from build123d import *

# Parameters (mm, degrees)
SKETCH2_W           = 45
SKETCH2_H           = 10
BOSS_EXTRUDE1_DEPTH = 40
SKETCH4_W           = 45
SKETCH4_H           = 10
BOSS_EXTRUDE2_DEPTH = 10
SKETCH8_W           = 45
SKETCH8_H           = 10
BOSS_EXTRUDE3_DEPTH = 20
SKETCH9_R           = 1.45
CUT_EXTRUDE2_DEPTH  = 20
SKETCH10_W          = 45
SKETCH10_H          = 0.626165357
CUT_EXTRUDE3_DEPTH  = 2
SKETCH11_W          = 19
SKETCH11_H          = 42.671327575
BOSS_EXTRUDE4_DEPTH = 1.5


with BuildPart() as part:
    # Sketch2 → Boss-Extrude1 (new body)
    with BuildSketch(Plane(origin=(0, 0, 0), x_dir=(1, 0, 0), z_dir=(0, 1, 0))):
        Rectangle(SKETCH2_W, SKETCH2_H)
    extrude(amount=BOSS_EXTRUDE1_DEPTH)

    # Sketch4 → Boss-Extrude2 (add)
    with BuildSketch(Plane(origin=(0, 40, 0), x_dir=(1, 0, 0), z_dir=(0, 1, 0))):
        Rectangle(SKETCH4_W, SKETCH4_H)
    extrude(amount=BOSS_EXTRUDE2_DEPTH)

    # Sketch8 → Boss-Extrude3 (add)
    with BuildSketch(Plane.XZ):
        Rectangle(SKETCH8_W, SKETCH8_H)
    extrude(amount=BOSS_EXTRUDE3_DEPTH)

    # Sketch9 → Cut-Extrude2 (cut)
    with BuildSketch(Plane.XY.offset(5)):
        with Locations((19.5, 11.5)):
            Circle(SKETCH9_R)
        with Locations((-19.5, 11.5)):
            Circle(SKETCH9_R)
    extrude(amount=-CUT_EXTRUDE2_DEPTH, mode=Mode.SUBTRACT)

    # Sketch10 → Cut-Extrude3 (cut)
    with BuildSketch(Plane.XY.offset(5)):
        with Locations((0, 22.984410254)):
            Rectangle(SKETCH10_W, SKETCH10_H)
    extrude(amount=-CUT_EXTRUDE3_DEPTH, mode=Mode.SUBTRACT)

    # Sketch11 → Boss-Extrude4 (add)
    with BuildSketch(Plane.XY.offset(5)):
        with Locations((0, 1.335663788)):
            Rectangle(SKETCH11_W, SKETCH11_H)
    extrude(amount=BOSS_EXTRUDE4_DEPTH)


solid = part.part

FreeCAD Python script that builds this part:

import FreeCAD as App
import Part
import Sketcher
from FreeCAD import Vector


def add_polygon(sketch, points):
    """Adds a closed chain of lines whose ends are joined by coincident constraints."""
    first, n = sketch.GeometryCount, len(points)
    for a, b in zip(points, points[1:] + points[:1]):
        sketch.addGeometry(Part.LineSegment(App.Vector(*a, 0), App.Vector(*b, 0)), False)
    for i in range(n):
        sketch.addConstraint(Sketcher.Constraint("Coincident", first + i, 2, first + (i + 1) % n, 1))

doc = App.newDocument("Part")
params = doc.addObject("Spreadsheet::Sheet", "Params")
for row, (alias, value) in enumerate([
    ("sketch1_width", "45 mm"),
    ("sketch1_height", "10 mm"),
    ("pad1_length", "40 mm"),
    ("sketch2_width", "45 mm"),
    ("sketch2_height", "10 mm"),
    ("pad2_length", "10 mm"),
    ("sketch3_width", "45 mm"),
    ("sketch3_height", "10 mm"),
    ("pad3_length", "20 mm"),
    ("sketch4_diameter", "2.9 mm"),
    ("pocket1_length", "20 mm"),
    ("sketch5_width", "45 mm"),
    ("pocket2_length", "2 mm"),
    ("sketch6_width", "19 mm"),
    ("pad4_length", "1.5 mm"),
], start=1):
    params.set(f"A{row}", alias)
    params.set(f"B{row}", "=" + value)
    params.setAlias(f"B{row}", alias)

body = doc.addObject("PartDesign::Body", "Body")

# Sketch on XZ plane
sketch1 = body.newObject("Sketcher::SketchObject", "Sketch")
sketch1.AttachmentSupport = (doc.getObject("XZ_Plane"), [""])
sketch1.MapMode = "FlatFace"
add_polygon(sketch1, [(-22, -5), (-22, 5), (22, 5), (22, -5)])  # lines 0-3
sketch1.addConstraint([
    Sketcher.Constraint("Vertical", 0),
    Sketcher.Constraint("Horizontal", 1),
    Sketcher.Constraint("Vertical", 2),
    Sketcher.Constraint("Horizontal", 3),
    Sketcher.Constraint("Symmetric", 0, 2, 2, 2, -1, 1),
    Sketcher.Constraint("DistanceX", 1, 1, 1, 2, 45.0),
    Sketcher.Constraint("DistanceY", 0, 1, 0, 2, 10.0),
])
sketch1.setExpression("Constraints[9]", "Params.sketch1_width")
sketch1.setExpression("Constraints[10]", "Params.sketch1_height")
pad1 = body.newObject("PartDesign::Pad", "Pad")
pad1.Profile = sketch1
pad1.setExpression("Length", "Params.pad1_length")
pad1.Reversed = True

# Sketch on XZ plane
sketch2 = body.newObject("Sketcher::SketchObject", "Sketch001")
sketch2.AttachmentSupport = (doc.getObject("XZ_Plane"), [""])
sketch2.MapMode = "FlatFace"
sketch2.AttachmentOffset = App.Placement(Vector(0, 0, -40), App.Rotation())
add_polygon(sketch2, [(-22, -5), (-22, 5), (22, 5), (22, -5)])  # lines 0-3
sketch2.addConstraint([
    Sketcher.Constraint("Vertical", 0),
    Sketcher.Constraint("Horizontal", 1),
    Sketcher.Constraint("Vertical", 2),
    Sketcher.Constraint("Horizontal", 3),
    Sketcher.Constraint("Symmetric", 0, 2, 2, 2, -1, 1),
    Sketcher.Constraint("DistanceX", 1, 1, 1, 2, 45.0),
    Sketcher.Constraint("DistanceY", 0, 1, 0, 2, 10.0),
])
sketch2.setExpression("Constraints[9]", "Params.sketch2_width")
sketch2.setExpression("Constraints[10]", "Params.sketch2_height")
pad2 = body.newObject("PartDesign::Pad", "Pad001")
pad2.Profile = sketch2
pad2.setExpression("Length", "Params.pad2_length")
pad2.Reversed = True

# Sketch on XZ plane
sketch3 = body.newObject("Sketcher::SketchObject", "Sketch002")
sketch3.AttachmentSupport = (doc.getObject("XZ_Plane"), [""])
sketch3.MapMode = "FlatFace"
add_polygon(sketch3, [(-22, 5), (-22, -5), (22, -5), (22, 5)])  # lines 0-3
sketch3.addConstraint([
    Sketcher.Constraint("Vertical", 0),
    Sketcher.Constraint("Horizontal", 1),
    Sketcher.Constraint("Vertical", 2),
    Sketcher.Constraint("Horizontal", 3),
    Sketcher.Constraint("Symmetric", 0, 2, 2, 2, -1, 1),
    Sketcher.Constraint("DistanceX", 1, 1, 1, 2, 45.0),
    Sketcher.Constraint("DistanceY", 0, 2, 0, 1, 10.0),
])
sketch3.setExpression("Constraints[9]", "Params.sketch3_width")
sketch3.setExpression("Constraints[10]", "Params.sketch3_height")
pad3 = body.newObject("PartDesign::Pad", "Pad002")
pad3.Profile = sketch3
pad3.setExpression("Length", "Params.pad3_length")

# Sketch on XY plane
sketch4 = body.newObject("Sketcher::SketchObject", "Sketch003")
sketch4.AttachmentSupport = (doc.getObject("XY_Plane"), [""])
sketch4.MapMode = "FlatFace"
sketch4.AttachmentOffset = App.Placement(Vector(0, 0, 5), App.Rotation())
sketch4.addGeometry([
    Part.Circle(Vector(19.5, 11.5, 0), Vector(0, 0, 1), 1.4),
    Part.Circle(Vector(-19.5, 11.5, 0), Vector(0, 0, 1), 1.4),
], False)
sketch4.addConstraint([
    Sketcher.Constraint("Equal", 0, 1),
    Sketcher.Constraint("Symmetric", 0, 3, 1, 3, -2),
    Sketcher.Constraint("Diameter", 0, 2.9),
    Sketcher.Constraint("DistanceX", 1, 3, 0, 3, 39.0),
    Sketcher.Constraint("DistanceY", -1, 1, 0, 3, 11.5),
])
sketch4.setExpression("Constraints[2]", "Params.sketch4_diameter")
pocket1 = body.newObject("PartDesign::Pocket", "Pocket")
pocket1.Profile = sketch4
pocket1.setExpression("Length", "Params.pocket1_length")

# Sketch on XY plane
sketch5 = body.newObject("Sketcher::SketchObject", "Sketch004")
sketch5.AttachmentSupport = (doc.getObject("XY_Plane"), [""])
sketch5.MapMode = "FlatFace"
sketch5.AttachmentOffset = App.Placement(Vector(0, 0, 5), App.Rotation())
add_polygon(sketch5, [(-22.5, 23.3), (-22.5, 22.7), (22.5, 22.7), (22.5, 23.3)])  # lines 0-3
sketch5.addConstraint([
    Sketcher.Constraint("Vertical", 0),
    Sketcher.Constraint("Horizontal", 1),
    Sketcher.Constraint("Vertical", 2),
    Sketcher.Constraint("Horizontal", 3),
    Sketcher.Constraint("DistanceX", 1, 1, 1, 2, 45.0),
    Sketcher.Constraint("DistanceX", 0, 2, -1, 1, 22.5),
    Sketcher.Constraint("DistanceY", 0, 2, 0, 1, 0.626165),
    Sketcher.Constraint("DistanceY", -1, 1, 0, 2, 22.671328),
])
sketch5.setExpression("Constraints[8]", "Params.sketch5_width")
pocket2 = body.newObject("PartDesign::Pocket", "Pocket001")
pocket2.Profile = sketch5
pocket2.setExpression("Length", "Params.pocket2_length")

# Sketch on XY plane
sketch6 = body.newObject("Sketcher::SketchObject", "Sketch005")
sketch6.AttachmentSupport = (doc.getObject("XY_Plane"), [""])
sketch6.MapMode = "FlatFace"
sketch6.AttachmentOffset = App.Placement(Vector(0, 0, 5), App.Rotation())
add_polygon(sketch6, [(-10, 23), (-10, -20), (10, -20), (10, 23)])  # lines 0-3
sketch6.addConstraint([
    Sketcher.Constraint("Vertical", 0),
    Sketcher.Constraint("Horizontal", 1),
    Sketcher.Constraint("Vertical", 2),
    Sketcher.Constraint("Horizontal", 3),
    Sketcher.Constraint("DistanceX", 1, 1, 1, 2, 19.0),
    Sketcher.Constraint("DistanceY", 0, 2, -1, 1, 20.0),
    Sketcher.Constraint("DistanceX", 0, 2, -1, 1, 9.5),
    Sketcher.Constraint("DistanceY", 0, 2, 0, 1, 42.671328),
])
sketch6.setExpression("Constraints[8]", "Params.sketch6_width")
pad4 = body.newObject("PartDesign::Pad", "Pad003")
pad4.Profile = sketch6
pad4.setExpression("Length", "Params.pad4_length")

doc.recompute()
